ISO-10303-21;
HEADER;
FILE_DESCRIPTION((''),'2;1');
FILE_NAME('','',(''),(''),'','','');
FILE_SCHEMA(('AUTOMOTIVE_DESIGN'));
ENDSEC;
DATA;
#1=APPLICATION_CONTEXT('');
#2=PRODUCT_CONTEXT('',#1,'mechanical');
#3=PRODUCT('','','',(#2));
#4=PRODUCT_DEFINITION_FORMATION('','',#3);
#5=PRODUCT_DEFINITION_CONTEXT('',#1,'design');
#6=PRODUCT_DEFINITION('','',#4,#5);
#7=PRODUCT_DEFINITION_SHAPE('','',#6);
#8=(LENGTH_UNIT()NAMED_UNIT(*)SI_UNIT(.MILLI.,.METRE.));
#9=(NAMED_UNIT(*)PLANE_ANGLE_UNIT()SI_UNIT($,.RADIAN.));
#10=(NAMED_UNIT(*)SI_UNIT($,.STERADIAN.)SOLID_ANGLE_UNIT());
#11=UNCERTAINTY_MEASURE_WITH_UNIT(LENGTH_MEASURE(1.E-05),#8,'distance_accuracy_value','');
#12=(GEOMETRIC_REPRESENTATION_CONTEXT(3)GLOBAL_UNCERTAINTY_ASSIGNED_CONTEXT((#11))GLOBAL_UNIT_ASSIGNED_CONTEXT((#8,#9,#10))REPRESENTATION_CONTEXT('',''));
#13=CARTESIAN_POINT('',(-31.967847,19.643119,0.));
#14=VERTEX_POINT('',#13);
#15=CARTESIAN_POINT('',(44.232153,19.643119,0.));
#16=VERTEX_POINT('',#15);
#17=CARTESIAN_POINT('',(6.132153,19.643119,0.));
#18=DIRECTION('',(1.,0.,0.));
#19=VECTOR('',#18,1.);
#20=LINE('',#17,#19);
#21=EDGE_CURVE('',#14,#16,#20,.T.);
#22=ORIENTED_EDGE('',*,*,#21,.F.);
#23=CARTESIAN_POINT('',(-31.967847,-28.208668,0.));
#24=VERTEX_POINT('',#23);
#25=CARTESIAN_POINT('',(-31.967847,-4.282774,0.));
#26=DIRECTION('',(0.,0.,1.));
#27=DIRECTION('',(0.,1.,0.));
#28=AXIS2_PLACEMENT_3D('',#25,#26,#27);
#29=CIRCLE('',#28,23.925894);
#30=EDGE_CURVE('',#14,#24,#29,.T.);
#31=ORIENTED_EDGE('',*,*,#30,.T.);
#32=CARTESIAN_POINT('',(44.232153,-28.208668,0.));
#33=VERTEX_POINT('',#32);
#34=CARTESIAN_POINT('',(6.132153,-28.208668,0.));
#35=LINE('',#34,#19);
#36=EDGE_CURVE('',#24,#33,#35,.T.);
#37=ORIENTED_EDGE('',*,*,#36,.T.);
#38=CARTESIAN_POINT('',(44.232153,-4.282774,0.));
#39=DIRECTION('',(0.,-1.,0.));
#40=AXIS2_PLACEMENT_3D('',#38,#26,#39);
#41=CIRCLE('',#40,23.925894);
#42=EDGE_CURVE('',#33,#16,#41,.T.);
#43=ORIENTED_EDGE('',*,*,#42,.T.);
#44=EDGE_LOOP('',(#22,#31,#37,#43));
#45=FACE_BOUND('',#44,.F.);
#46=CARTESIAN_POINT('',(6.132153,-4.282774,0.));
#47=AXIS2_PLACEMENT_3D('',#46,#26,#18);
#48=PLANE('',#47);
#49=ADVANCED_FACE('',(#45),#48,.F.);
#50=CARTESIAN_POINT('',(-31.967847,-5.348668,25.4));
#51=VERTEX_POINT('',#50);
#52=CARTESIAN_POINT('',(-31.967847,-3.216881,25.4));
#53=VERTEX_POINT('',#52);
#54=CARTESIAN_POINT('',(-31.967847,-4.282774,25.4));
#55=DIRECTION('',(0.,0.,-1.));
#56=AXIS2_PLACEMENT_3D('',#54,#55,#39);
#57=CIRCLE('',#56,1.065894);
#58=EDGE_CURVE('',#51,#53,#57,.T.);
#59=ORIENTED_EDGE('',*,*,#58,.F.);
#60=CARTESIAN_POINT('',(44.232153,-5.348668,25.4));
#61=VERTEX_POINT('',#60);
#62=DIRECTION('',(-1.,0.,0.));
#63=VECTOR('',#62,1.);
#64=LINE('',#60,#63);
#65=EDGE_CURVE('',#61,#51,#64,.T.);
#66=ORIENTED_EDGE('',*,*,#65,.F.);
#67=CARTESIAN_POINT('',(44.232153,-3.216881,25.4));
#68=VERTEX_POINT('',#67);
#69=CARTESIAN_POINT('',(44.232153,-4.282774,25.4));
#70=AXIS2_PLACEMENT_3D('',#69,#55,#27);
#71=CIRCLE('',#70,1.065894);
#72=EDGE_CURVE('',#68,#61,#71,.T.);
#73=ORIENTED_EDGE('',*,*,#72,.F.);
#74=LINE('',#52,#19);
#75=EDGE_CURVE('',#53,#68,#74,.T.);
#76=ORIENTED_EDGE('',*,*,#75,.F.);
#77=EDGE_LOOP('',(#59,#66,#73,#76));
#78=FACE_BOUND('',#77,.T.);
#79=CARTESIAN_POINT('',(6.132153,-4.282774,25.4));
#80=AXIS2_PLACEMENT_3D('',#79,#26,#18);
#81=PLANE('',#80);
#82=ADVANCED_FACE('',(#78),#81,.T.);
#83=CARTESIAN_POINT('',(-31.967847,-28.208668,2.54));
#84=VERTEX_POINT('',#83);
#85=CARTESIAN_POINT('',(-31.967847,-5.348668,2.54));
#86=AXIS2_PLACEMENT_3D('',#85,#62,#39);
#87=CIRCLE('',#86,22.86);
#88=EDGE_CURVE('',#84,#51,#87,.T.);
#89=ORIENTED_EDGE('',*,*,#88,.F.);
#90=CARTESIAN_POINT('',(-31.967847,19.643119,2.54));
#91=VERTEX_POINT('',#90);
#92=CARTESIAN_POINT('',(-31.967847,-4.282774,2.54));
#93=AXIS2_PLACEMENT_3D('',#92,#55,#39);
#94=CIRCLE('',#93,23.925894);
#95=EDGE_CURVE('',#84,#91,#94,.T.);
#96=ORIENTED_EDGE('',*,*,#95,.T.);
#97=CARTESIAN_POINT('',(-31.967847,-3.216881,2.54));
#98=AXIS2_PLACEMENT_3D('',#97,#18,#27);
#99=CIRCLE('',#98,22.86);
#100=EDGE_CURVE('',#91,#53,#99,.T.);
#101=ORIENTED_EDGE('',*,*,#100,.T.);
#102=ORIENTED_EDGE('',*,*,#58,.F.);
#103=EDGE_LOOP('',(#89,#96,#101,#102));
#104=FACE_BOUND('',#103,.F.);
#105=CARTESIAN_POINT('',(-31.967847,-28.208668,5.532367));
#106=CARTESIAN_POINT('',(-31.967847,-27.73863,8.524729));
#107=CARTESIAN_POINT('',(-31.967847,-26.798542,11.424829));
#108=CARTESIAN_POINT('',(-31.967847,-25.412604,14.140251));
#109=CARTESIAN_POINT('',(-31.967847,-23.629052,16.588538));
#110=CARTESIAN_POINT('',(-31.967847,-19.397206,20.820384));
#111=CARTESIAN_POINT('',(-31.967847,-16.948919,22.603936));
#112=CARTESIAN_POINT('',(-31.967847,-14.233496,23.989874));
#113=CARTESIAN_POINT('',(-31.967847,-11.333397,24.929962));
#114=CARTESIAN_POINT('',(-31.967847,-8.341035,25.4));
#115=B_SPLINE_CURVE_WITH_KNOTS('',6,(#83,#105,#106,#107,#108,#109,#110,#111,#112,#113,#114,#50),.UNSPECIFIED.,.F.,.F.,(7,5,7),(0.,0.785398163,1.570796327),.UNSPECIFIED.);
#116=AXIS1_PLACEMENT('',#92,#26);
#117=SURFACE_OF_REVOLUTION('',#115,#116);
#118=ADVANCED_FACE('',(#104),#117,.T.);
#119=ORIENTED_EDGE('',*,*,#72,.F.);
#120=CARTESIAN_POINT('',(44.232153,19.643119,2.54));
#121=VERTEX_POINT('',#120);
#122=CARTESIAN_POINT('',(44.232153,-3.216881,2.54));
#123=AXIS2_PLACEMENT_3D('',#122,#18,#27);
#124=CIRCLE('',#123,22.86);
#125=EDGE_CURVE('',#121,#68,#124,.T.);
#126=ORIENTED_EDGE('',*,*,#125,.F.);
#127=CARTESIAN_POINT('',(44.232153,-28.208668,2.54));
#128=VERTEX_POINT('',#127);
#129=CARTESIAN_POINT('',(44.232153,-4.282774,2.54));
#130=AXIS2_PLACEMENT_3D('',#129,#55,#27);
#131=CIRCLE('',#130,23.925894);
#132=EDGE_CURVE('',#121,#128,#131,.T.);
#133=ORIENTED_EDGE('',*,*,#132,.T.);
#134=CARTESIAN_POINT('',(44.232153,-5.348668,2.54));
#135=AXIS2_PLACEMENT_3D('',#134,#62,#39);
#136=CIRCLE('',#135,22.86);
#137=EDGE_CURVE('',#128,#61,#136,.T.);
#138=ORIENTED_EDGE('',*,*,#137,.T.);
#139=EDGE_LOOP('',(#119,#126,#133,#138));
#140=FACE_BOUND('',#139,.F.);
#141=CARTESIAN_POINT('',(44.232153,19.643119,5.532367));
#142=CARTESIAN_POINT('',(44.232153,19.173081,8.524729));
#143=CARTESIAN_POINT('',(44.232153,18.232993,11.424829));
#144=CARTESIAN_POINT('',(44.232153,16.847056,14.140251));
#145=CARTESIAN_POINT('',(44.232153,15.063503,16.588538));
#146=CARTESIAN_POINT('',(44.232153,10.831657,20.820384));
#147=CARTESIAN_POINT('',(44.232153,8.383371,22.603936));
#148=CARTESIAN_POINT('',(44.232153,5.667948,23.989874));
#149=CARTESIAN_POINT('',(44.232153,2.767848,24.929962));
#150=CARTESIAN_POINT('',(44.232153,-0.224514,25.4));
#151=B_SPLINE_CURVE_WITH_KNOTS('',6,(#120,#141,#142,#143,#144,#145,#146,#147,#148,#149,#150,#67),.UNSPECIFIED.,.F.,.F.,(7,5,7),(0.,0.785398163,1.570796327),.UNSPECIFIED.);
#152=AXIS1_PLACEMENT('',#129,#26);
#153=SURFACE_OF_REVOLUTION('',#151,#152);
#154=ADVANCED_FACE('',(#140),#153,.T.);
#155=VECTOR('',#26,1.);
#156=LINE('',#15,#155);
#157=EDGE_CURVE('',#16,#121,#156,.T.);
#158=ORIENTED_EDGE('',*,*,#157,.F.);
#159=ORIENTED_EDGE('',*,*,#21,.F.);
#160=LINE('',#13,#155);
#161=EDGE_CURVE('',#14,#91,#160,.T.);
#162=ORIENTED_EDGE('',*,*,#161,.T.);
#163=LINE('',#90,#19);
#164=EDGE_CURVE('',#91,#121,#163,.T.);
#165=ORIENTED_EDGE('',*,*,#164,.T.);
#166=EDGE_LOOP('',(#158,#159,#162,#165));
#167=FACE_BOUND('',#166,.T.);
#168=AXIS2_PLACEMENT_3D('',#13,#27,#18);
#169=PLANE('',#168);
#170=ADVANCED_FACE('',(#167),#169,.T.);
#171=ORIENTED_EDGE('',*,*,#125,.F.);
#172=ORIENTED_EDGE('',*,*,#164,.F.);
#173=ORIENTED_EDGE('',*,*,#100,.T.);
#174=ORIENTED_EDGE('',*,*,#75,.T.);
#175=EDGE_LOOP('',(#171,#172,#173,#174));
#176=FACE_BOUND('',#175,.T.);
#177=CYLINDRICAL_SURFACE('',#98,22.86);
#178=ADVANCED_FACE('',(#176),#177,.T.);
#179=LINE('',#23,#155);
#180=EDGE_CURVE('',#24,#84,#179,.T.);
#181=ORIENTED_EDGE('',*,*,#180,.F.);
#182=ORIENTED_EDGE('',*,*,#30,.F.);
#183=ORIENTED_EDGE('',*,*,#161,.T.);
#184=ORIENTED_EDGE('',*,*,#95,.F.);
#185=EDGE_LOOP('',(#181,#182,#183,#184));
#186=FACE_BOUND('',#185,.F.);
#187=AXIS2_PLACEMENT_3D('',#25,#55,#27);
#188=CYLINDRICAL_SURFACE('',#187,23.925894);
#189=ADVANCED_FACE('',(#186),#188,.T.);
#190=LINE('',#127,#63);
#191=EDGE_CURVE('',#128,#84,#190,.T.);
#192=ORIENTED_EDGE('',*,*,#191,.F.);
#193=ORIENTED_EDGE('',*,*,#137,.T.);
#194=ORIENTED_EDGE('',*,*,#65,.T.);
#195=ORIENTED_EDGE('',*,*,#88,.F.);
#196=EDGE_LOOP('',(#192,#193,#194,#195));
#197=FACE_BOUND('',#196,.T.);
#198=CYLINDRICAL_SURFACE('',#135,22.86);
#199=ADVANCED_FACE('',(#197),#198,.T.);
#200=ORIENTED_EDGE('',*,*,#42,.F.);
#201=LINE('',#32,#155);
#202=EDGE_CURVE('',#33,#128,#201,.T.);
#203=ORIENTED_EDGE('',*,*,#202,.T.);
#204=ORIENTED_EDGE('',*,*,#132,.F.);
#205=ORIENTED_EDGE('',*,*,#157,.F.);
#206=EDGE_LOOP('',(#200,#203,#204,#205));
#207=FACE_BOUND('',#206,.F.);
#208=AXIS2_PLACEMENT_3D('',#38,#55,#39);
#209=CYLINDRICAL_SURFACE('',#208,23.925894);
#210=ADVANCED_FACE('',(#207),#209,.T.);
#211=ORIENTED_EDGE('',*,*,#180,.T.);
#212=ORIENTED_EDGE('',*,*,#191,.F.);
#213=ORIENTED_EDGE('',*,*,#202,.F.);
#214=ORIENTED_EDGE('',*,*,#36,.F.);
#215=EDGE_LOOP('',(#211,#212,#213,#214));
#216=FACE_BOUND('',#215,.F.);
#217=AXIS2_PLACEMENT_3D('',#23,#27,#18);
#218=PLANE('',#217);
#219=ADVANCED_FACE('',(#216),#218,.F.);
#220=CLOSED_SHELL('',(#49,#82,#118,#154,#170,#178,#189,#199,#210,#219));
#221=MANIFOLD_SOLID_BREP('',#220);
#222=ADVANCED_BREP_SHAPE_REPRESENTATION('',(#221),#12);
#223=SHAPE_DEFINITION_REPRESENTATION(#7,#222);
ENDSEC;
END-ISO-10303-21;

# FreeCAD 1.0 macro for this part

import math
import FreeCAD as App
import Part
import Sketcher

V = App.Vector
Q = App.Units.Quantity


def edges_at(feature, points):
    """Names of the edges that pass closest to the given points."""
    edges = feature.Shape.Edges
    near = lambda p: min(range(len(edges)), key=lambda i: edges[i].distToShape(Part.Vertex(*p))[0])
    return sorted({f"Edge{near(p) + 1}" for p in points})

doc = App.newDocument("Part")
body = doc.addObject("PartDesign::Body", "Body")

# Sketch on XY plane
sketch1 = body.newObject("Sketcher::SketchObject", "Sketch")
sketch1.AttachmentSupport = (doc.getObject("XY_Plane"), [""])
sketch1.MapMode = "FlatFace"
sketch1.addGeometry(Part.LineSegment(V(-32, -28, 0), V(44, -28, 0)), False)
sketch1.addGeometry(Part.ArcOfCircle(Part.Circle(V(44, -4, 0), V(0, 0, 1), 24), math.radians(-90), math.radians(90)), False)
sketch1.addGeometry(Part.LineSegment(V(44, 20, 0), V(-32, 20, 0)), False)
sketch1.addGeometry(Part.ArcOfCircle(Part.Circle(V(-32, -4, 0), V(0, 0, 1), 24), math.radians(90), math.radians(270)), False)
sketch1.addConstraint(Sketcher.Constraint("Tangent", 0, 2, 1, 1))
sketch1.addConstraint(Sketcher.Constraint("Tangent", 1, 2, 2, 1))
sketch1.addConstraint(Sketcher.Constraint("Tangent", 2, 2, 3, 1))
sketch1.addConstraint(Sketcher.Constraint("Tangent", 3, 2, 0, 1))
sketch1.addConstraint(Sketcher.Constraint("Horizontal", 0))
sketch1.addConstraint(Sketcher.Constraint("Horizontal", 2))
sketch1.addConstraint(Sketcher.Constraint("DistanceX", 0, 1, 0, 2, Q("3 in")))
sketch1.addConstraint(Sketcher.Constraint("Radius", 1, 23.925894))
sketch1.addConstraint(Sketcher.Constraint("DistanceY", -1, 1, 1, 2, 19.643119))
sketch1.addConstraint(Sketcher.Constraint("DistanceX", -1, 1, 1, 3, 44.232153))
pad1 = body.newObject("PartDesign::Pad", "Pad")
pad1.Profile = sketch1
pad1.Length = Q("1 in")
doc.recompute()

fillet = body.newObject("PartDesign::Fillet", "Fillet")
fillet.Base = (pad1, edges_at(pad1, [
    (6.132, 19.643, 25.4),
    (-55.894, -4.283, 25.4),
    (6.132, -28.209, 25.4),
    (68.158, -4.283, 25.4),
]))
fillet.Radius = Q("0.9 in")

doc.recompute()
